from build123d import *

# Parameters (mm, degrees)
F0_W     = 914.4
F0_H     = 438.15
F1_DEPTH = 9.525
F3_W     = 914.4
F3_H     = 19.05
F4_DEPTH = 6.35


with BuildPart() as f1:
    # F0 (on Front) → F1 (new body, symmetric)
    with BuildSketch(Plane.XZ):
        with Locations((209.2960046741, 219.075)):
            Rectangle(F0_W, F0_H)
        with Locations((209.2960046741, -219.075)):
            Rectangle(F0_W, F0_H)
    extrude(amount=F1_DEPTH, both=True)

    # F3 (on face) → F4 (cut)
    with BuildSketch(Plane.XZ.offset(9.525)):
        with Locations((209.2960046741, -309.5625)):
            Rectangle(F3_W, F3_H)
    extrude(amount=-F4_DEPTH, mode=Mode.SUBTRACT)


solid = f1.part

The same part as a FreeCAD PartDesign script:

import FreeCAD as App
import Part
import Sketcher

V = App.Vector
Q = App.Units.Quantity


def add_polygon(sketch, points):
    """Adds a closed chain of lines whose ends are joined by coincident constraints."""
    first, n = sketch.GeometryCount, len(points)
    for a, b in zip(points, points[1:] + points[:1]):
        sketch.addGeometry(Part.LineSegment(App.Vector(*a, 0), App.Vector(*b, 0)), False)
    for i in range(n):
        sketch.addConstraint(Sketcher.Constraint("Coincident", first + i, 2, first + (i + 1) % n, 1))

doc = App.newDocument("Part")
body = doc.addObject("PartDesign::Body", "Body")

# Sketch on XZ plane
sketch1 = body.newObject("Sketcher::SketchObject", "Sketch")
sketch1.AttachmentSupport = (doc.getObject("XZ_Plane"), [""])
sketch1.MapMode = "FlatFace"
add_polygon(sketch1, [(-248, 438), (-248, -438), (666, -438), (666, 438)])  # lines 0-3
sketch1.addConstraint([
    Sketcher.Constraint("Vertical", 0),
    Sketcher.Constraint("Horizontal", 1),
    Sketcher.Constraint("Vertical", 2),
    Sketcher.Constraint("Horizontal", 3),
    Sketcher.Constraint("DistanceX", 1, 1, 1, 2, Q("36 in")),
    Sketcher.Constraint("DistanceY", 0, 2, 0, 1, Q("34.5 in")),
    Sketcher.Constraint("DistanceX", 0, 2, -1, 1, Q("9.7599998 in")),
    Sketcher.Constraint("DistanceY", 0, 2, -1, 1, Q("17.25 in")),
])
pad1 = body.newObject("PartDesign::Pad", "Pad")
pad1.Profile = sketch1
pad1.Length = Q("0.75 in")
pad1.Midplane = True

# Sketch on XZ plane
sketch2 = body.newObject("Sketcher::SketchObject", "Sketch001")
sketch2.AttachmentSupport = (doc.getObject("XZ_Plane"), [""])
sketch2.MapMode = "FlatFace"
sketch2.AttachmentOffset = App.Placement(V(0, 0, 0.375 * 25.4), App.Rotation())
add_polygon(sketch2, [(-248, -300), (-248, -319), (666, -319), (666, -300)])  # lines 0-3
sketch2.addConstraint([
    Sketcher.Constraint("Vertical", 0),
    Sketcher.Constraint("Horizontal", 1),
    Sketcher.Constraint("Vertical", 2),
    Sketcher.Constraint("Horizontal", 3),
    Sketcher.Constraint("DistanceX", 1, 1, 1, 2, Q("36 in")),
    Sketcher.Constraint("DistanceY", 0, 2, 0, 1, Q("0.75 in")),
    Sketcher.Constraint("DistanceX", 0, 2, -1, 1, Q("9.7599998 in")),
    Sketcher.Constraint("DistanceY", 0, 2, -1, 1, Q("12.5625 in")),
])
pocket1 = body.newObject("PartDesign::Pocket", "Pocket")
pocket1.Profile = sketch2
pocket1.Length = Q("0.25 in")

doc.recompute()
